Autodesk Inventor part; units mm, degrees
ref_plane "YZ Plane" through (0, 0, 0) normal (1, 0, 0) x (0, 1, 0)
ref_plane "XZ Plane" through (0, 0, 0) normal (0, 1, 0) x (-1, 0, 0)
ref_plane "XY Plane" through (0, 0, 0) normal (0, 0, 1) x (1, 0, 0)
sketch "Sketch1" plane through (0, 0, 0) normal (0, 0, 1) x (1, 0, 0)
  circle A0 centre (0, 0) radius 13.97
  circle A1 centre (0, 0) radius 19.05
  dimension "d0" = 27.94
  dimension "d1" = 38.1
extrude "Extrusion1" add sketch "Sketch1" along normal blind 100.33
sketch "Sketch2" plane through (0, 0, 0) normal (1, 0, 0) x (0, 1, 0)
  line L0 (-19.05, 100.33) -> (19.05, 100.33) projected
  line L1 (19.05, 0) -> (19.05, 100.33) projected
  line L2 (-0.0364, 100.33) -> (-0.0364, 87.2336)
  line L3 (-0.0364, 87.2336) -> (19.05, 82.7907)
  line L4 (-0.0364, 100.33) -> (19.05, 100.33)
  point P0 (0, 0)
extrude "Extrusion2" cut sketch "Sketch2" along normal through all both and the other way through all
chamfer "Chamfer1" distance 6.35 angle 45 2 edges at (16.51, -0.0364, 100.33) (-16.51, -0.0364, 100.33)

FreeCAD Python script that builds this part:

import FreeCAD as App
import Part
import Sketcher
Q = App.Units.Quantity


def edges_at(feature, points):
    """Names of the edges that pass closest to the given points."""
    edges = feature.Shape.Edges
    near = lambda p: min(range(len(edges)), key=lambda i: edges[i].distToShape(Part.Vertex(*p))[0])
    return sorted({f"Edge{near(p) + 1}" for p in points})

doc = App.newDocument("Part")
params = doc.addObject("Spreadsheet::Sheet", "Params")
for row, (alias, value) in enumerate([
    ("sketch1_diameter", "1.5 in"),
    ("sketch1_diameter2", "1.1 in"),
    ("pad1_length", "3.95 in"),
    ("chamfer_size", "0.25 in"),
], start=1):
    params.set(f"A{row}", alias)
    params.set(f"B{row}", "=" + value)
    params.setAlias(f"B{row}", alias)

body = doc.addObject("PartDesign::Body", "Body")

# Sketch on XY plane
sketch1 = body.newObject("Sketcher::SketchObject", "Sketch")
sketch1.AttachmentSupport = (doc.getObject("XY_Plane"), [""])
sketch1.MapMode = "FlatFace"
sketch1.addGeometry(Part.Circle(App.Vector(0, 0, 0), App.Vector(0, 0, 1), 19), False)
sketch1.addGeometry(Part.Circle(App.Vector(0, 0, 0), App.Vector(0, 0, 1), 14), False)
sketch1.addConstraint(Sketcher.Constraint("Coincident", 0, 3, -1, 1))
sketch1.addConstraint(Sketcher.Constraint("Coincident", 1, 3, -1, 1))
sketch1.addConstraint(Sketcher.Constraint("Diameter", 0, Q("1.5 in")))
sketch1.addConstraint(Sketcher.Constraint("Diameter", 1, Q("1.1 in")))
sketch1.setExpression("Constraints[2]", "Params.sketch1_diameter")
sketch1.setExpression("Constraints[3]", "Params.sketch1_diameter2")
pad1 = body.newObject("PartDesign::Pad", "Pad")
pad1.Profile = sketch1
pad1.setExpression("Length", "Params.pad1_length")

# Sketch on YZ plane
sketch2 = body.newObject("Sketcher::SketchObject", "Sketch001")
sketch2.AttachmentSupport = (doc.getObject("YZ_Plane"), [""])
sketch2.MapMode = "FlatFace"
sketch2.addGeometry(Part.LineSegment(App.Vector(19, 100, 0), App.Vector(0, 100, 0)), False)
sketch2.addGeometry(Part.LineSegment(App.Vector(0, 100, 0), App.Vector(0, 87, 0)), False)
sketch2.addGeometry(Part.LineSegment(App.Vector(0, 87, 0), App.Vector(19, 83, 0)), False)
sketch2.addGeometry(Part.LineSegment(App.Vector(19, 83, 0), App.Vector(19, 100, 0)), False)
sketch2.addConstraint(Sketcher.Constraint("Coincident", 0, 2, 1, 1))
sketch2.addConstraint(Sketcher.Constraint("Coincident", 1, 2, 2, 1))
sketch2.addConstraint(Sketcher.Constraint("Coincident", 2, 2, 3, 1))
sketch2.addConstraint(Sketcher.Constraint("Coincident", 3, 2, 0, 1))
sketch2.addConstraint(Sketcher.Constraint("Horizontal", 0))
sketch2.addConstraint(Sketcher.Constraint("Vertical", 1))
sketch2.addConstraint(Sketcher.Constraint("Vertical", 3))
sketch2.addConstraint(Sketcher.Constraint("DistanceY", -1, 1, 0, 2, Q("3.95 in")))
sketch2.addConstraint(Sketcher.Constraint("DistanceX", -1, 1, 2, 2, Q("0.75 in")))
sketch2.addConstraint(Sketcher.Constraint("DistanceY", 1, 2, 1, 1, Q("0.5156 in")))
sketch2.addConstraint(Sketcher.Constraint("DistanceX", 0, 2, 0, 1, 19.0864))
sketch2.addConstraint(Sketcher.Constraint("DistanceY", 3, 1, 3, 2, 17.5393))
pocket1 = body.newObject("PartDesign::Pocket", "Pocket")
pocket1.Profile = sketch2
pocket1.Type = "ThroughAll"
pocket1.Midplane = True
doc.recompute()

chamfer = body.newObject("PartDesign::Chamfer", "Chamfer")
chamfer.Base = (pocket1, edges_at(pocket1, [(16.51, -0.036, 100.33), (-16.51, -0.036, 100.33)]))
chamfer.setExpression("Size", "Params.chamfer_size")

doc.recompute()
